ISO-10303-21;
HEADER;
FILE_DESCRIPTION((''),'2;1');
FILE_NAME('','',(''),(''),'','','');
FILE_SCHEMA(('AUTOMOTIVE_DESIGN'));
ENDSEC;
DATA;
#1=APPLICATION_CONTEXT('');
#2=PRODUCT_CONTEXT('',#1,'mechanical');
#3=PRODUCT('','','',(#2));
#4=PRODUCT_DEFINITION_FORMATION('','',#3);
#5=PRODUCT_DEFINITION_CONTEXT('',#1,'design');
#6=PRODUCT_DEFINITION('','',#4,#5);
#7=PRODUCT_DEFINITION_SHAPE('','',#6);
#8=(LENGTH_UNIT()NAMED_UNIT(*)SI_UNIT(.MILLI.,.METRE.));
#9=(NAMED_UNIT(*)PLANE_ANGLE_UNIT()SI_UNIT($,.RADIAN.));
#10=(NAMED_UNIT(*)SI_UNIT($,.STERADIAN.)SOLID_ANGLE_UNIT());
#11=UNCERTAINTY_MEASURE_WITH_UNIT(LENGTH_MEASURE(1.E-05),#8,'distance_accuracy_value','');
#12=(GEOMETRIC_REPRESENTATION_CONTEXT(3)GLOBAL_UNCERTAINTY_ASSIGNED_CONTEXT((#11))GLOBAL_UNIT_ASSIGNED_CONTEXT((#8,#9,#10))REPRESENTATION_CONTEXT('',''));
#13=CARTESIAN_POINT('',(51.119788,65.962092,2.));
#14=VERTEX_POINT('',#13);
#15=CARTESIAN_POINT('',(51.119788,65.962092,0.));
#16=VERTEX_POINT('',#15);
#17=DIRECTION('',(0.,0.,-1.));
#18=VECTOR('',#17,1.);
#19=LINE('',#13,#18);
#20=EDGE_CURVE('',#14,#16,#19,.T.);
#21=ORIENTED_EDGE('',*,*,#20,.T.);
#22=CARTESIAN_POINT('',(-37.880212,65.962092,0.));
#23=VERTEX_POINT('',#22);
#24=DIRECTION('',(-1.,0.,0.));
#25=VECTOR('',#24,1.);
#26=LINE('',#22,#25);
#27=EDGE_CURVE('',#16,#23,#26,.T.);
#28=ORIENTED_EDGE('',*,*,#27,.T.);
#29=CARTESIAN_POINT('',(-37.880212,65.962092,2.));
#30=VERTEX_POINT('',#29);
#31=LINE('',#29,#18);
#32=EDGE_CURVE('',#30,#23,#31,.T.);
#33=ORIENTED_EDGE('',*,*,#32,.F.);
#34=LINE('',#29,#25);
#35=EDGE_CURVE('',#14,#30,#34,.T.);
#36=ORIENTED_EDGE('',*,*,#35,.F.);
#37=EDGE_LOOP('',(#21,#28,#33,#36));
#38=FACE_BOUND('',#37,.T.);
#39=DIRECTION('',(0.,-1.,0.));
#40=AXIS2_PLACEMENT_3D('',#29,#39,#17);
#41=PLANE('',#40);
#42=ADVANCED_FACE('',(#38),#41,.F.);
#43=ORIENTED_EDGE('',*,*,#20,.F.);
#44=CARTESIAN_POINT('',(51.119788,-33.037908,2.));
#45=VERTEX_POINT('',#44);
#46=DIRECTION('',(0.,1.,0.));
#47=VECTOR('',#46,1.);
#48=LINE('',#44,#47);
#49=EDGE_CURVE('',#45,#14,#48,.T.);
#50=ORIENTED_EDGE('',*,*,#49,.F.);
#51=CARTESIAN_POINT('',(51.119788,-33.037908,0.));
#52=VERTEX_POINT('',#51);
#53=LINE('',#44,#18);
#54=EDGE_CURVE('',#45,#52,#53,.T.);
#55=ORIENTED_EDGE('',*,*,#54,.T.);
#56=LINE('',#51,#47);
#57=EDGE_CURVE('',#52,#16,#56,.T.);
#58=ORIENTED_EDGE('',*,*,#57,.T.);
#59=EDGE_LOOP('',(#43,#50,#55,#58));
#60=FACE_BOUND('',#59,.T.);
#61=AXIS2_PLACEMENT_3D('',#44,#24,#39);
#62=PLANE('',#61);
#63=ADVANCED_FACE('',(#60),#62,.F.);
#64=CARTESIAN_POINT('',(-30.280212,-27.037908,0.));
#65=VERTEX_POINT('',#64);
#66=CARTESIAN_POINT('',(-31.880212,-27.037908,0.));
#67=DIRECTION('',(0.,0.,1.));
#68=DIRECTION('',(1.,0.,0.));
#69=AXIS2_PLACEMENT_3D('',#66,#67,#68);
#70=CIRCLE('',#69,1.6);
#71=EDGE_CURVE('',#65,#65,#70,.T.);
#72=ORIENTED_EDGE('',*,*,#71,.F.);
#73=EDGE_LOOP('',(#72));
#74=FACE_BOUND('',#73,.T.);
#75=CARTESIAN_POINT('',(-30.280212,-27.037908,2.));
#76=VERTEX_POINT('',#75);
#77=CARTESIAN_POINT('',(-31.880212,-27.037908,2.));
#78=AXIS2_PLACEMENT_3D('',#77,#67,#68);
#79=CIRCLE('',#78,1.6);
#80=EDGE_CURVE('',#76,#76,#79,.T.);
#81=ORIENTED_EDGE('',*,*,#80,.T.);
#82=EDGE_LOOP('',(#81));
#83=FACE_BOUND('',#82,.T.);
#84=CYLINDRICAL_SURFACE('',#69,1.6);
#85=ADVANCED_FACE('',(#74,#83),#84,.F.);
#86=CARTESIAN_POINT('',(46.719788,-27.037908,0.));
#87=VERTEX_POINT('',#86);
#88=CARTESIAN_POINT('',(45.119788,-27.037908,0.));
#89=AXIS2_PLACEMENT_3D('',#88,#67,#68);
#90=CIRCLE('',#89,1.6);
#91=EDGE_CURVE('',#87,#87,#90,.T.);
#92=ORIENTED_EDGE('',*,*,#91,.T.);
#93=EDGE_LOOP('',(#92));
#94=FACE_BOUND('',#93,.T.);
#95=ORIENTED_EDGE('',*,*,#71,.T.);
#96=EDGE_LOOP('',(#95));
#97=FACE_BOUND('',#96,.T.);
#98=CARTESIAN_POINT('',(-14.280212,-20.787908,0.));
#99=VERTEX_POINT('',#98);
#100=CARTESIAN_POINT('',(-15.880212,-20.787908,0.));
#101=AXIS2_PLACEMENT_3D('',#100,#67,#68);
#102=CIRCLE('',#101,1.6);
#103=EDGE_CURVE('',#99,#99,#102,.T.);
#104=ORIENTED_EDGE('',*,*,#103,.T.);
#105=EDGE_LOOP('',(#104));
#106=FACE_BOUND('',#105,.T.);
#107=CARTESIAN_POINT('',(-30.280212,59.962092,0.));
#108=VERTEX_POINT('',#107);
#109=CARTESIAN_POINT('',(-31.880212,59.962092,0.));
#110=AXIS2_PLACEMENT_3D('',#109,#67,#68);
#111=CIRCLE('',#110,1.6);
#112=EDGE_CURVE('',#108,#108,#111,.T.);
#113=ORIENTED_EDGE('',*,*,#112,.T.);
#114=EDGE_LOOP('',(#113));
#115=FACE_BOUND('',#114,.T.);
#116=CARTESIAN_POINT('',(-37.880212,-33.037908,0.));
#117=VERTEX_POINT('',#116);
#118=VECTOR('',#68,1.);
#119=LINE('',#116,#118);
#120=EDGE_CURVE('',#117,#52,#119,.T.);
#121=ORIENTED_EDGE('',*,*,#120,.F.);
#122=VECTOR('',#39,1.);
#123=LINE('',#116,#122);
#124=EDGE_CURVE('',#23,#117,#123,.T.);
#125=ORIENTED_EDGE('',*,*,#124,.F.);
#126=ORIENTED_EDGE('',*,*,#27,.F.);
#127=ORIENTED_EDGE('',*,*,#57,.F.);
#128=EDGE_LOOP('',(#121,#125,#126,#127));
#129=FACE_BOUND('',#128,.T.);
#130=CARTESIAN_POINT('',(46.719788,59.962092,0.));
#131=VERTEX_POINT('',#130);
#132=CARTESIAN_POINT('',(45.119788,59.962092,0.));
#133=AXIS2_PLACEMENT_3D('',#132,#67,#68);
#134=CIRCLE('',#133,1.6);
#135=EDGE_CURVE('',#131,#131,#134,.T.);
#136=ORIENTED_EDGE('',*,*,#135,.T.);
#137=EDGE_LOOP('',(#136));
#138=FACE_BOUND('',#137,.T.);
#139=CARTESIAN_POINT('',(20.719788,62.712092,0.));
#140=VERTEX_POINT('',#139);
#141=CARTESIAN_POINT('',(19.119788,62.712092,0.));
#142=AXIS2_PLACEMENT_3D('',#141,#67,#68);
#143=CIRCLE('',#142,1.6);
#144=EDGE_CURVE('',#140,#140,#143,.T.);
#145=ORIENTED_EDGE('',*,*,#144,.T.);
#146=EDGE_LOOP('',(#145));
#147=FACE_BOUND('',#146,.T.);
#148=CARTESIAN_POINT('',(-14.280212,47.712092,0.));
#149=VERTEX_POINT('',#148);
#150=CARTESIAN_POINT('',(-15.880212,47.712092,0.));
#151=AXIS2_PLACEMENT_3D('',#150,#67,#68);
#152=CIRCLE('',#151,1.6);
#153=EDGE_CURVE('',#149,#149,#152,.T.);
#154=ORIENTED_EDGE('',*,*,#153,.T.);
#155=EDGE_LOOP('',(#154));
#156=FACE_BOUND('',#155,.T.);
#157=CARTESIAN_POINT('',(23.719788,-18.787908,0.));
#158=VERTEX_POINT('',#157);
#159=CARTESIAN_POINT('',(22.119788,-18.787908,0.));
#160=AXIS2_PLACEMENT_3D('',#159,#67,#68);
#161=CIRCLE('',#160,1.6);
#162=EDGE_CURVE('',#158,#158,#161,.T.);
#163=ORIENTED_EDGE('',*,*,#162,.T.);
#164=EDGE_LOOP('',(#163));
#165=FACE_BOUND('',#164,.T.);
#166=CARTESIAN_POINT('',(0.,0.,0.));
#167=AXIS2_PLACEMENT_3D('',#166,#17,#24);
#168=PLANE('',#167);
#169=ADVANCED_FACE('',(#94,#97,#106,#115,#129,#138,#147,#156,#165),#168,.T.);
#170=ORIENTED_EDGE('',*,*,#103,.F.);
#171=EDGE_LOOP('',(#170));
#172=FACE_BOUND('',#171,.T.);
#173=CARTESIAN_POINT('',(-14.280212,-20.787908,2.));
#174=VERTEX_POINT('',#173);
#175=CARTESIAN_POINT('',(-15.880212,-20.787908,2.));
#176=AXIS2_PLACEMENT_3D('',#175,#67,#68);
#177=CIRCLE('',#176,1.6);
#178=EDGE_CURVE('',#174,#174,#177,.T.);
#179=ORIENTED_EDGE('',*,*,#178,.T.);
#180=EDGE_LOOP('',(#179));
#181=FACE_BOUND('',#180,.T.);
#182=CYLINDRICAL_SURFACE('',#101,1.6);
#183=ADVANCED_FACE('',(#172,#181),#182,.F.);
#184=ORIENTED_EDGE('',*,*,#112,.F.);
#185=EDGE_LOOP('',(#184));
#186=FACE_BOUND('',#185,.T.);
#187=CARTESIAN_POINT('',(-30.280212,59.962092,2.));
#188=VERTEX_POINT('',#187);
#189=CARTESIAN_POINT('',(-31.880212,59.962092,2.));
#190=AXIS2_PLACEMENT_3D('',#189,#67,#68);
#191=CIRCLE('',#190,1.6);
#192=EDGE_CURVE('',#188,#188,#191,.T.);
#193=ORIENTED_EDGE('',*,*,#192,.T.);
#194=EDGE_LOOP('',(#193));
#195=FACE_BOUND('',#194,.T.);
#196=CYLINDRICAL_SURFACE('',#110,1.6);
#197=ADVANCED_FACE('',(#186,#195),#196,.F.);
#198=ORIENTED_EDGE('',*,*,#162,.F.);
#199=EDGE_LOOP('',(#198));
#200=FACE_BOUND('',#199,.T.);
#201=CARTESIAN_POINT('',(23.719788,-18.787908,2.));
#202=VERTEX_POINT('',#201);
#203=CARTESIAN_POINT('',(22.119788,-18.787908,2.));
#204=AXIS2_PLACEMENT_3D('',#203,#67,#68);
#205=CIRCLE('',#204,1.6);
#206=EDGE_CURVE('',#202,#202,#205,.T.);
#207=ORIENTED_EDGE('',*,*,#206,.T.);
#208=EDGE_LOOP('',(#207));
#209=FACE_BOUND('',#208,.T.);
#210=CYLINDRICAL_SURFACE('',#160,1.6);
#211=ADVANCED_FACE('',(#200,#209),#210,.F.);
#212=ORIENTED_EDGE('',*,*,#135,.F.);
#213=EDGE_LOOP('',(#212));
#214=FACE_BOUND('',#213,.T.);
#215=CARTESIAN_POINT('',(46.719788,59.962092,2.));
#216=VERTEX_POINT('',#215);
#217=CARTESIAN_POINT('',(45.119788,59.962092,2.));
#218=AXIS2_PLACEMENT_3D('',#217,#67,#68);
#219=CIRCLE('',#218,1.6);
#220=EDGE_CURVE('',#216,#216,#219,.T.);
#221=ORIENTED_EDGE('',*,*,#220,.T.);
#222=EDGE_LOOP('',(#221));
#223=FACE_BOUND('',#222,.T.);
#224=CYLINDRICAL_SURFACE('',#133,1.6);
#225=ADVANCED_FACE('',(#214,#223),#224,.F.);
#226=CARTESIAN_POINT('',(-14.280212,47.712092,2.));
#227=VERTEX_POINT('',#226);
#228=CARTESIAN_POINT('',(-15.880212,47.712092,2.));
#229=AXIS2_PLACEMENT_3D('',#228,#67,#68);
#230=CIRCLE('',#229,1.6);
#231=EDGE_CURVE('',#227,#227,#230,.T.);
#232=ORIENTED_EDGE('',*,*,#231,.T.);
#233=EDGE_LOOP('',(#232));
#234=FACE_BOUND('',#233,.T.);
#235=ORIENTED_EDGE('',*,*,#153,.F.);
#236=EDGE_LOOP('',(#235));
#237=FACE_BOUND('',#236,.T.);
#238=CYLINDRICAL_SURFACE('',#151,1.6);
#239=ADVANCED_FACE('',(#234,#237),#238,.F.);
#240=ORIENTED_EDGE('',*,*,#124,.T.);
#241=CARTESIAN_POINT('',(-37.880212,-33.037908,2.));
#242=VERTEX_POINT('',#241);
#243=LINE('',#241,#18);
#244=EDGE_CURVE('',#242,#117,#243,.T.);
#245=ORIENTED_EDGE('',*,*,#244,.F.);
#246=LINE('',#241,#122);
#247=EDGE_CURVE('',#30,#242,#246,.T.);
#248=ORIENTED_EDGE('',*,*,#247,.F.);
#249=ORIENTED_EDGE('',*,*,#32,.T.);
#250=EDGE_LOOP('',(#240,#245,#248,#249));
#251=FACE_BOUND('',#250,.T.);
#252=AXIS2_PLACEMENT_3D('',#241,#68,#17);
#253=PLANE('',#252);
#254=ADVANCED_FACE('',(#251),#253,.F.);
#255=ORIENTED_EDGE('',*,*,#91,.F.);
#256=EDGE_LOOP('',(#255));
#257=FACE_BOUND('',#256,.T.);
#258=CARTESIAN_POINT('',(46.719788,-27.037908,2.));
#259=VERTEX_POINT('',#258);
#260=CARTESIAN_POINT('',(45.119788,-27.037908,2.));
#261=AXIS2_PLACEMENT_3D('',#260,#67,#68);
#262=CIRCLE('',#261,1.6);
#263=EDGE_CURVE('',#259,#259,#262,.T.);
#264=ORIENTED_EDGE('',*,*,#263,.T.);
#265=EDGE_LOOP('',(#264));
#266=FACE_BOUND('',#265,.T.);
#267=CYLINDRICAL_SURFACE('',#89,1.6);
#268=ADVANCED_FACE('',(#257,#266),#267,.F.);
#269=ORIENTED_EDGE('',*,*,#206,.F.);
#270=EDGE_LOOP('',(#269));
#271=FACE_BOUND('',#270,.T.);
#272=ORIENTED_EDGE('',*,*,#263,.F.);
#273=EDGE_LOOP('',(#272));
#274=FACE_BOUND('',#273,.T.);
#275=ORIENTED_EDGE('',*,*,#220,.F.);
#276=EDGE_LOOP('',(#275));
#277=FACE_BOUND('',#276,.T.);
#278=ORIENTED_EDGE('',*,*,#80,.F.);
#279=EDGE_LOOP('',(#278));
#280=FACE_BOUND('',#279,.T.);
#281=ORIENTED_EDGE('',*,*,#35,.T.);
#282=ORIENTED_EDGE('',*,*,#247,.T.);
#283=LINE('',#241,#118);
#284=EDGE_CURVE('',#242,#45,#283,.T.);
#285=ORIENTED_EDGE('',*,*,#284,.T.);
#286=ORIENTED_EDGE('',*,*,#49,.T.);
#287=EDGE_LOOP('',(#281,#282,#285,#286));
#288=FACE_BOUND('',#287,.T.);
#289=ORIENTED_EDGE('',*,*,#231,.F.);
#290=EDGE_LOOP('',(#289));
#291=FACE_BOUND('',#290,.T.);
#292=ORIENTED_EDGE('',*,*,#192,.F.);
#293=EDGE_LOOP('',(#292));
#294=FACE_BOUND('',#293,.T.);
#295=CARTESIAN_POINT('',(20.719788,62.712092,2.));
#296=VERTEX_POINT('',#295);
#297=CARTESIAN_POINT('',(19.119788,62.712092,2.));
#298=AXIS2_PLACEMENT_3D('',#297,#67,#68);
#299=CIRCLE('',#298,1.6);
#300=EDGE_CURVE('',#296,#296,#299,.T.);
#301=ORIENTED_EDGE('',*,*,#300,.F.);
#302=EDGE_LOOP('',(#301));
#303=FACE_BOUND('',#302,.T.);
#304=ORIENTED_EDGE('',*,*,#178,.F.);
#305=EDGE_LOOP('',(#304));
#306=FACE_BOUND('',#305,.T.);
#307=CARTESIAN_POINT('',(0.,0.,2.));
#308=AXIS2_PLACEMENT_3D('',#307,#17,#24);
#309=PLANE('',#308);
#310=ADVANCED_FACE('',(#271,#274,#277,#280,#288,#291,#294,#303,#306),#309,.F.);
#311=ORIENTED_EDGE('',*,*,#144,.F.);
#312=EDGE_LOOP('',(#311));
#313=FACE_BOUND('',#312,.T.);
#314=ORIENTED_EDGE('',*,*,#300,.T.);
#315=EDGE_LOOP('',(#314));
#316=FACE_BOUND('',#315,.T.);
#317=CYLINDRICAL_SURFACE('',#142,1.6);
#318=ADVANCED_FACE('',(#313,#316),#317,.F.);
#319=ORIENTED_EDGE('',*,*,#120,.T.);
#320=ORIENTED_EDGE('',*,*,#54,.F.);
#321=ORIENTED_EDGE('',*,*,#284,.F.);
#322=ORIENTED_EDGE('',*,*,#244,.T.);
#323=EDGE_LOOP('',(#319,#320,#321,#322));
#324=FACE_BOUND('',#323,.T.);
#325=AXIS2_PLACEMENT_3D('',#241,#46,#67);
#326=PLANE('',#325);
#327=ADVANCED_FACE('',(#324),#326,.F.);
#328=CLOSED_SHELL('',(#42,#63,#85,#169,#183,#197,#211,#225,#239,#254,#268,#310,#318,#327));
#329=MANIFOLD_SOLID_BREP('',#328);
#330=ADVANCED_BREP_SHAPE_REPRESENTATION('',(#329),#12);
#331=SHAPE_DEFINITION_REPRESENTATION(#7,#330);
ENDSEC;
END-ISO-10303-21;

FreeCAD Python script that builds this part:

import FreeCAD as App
import Part
import Sketcher

V = App.Vector

doc = App.newDocument("Part")
body = doc.addObject("PartDesign::Body", "Body")

# Sketch on XY plane
sketch1 = body.newObject("Sketcher::SketchObject", "Sketch")
sketch1.AttachmentSupport = (doc.getObject("XY_Plane"), [""])
sketch1.MapMode = "FlatFace"
sketch1.addGeometry(Part.LineSegment(V(-37.880212, 65.962092, 0), V(-37.880212, -33.037908, 0)), False)
sketch1.addGeometry(Part.LineSegment(V(-37.880212, -33.037908, 0), V(51.119788, -33.037908, 0)), False)
sketch1.addGeometry(Part.LineSegment(V(51.119788, -33.037908, 0), V(51.119788, 65.962092, 0)), False)
sketch1.addGeometry(Part.LineSegment(V(51.119788, 65.962092, 0), V(-37.880212, 65.962092, 0)), False)
sketch1.addConstraint(Sketcher.Constraint("Coincident", 0, 2, 1, 1))
sketch1.addConstraint(Sketcher.Constraint("Coincident", 1, 2, 2, 1))
sketch1.addConstraint(Sketcher.Constraint("Coincident", 2, 2, 3, 1))
sketch1.addConstraint(Sketcher.Constraint("Coincident", 3, 2, 0, 1))
sketch1.addConstraint(Sketcher.Constraint("Vertical", 0))
sketch1.addConstraint(Sketcher.Constraint("Horizontal", 1))
sketch1.addConstraint(Sketcher.Constraint("Vertical", 2))
sketch1.addConstraint(Sketcher.Constraint("Horizontal", 3))
sketch1.addConstraint(Sketcher.Constraint("DistanceX", 1, 1, 1, 2, 89.0))
sketch1.addConstraint(Sketcher.Constraint("DistanceY", 0, 2, 0, 1, 99.0))
sketch1.addConstraint(Sketcher.Constraint("DistanceX", 0, 2, -1, 1, 37.880212))
sketch1.addConstraint(Sketcher.Constraint("DistanceY", 0, 2, -1, 1, 33.037908))
pad1 = body.newObject("PartDesign::Pad", "Pad")
pad1.Profile = sketch1
pad1.Length = 2

# Sketch on XY plane
sketch2 = body.newObject("Sketcher::SketchObject", "Sketch001")
sketch2.AttachmentSupport = (doc.getObject("XY_Plane"), [""])
sketch2.MapMode = "FlatFace"
sketch2.AttachmentOffset = App.Placement(V(0, 0, 2), App.Rotation())
sketch2.addGeometry(Part.Circle(V(-31.880212, 59.962092, 0), V(0, 0, 1), 1.6), False)
sketch2.addGeometry(Part.Circle(V(45.119788, 59.962092, 0), V(0, 0, 1), 1.6), False)
sketch2.addGeometry(Part.Circle(V(-31.880212, -27.037908, 0), V(0, 0, 1), 1.6), False)
sketch2.addGeometry(Part.Circle(V(45.119788, -27.037908, 0), V(0, 0, 1), 1.6), False)
sketch2.addConstraint(Sketcher.Constraint("Equal", 0, 1))
sketch2.addConstraint(Sketcher.Constraint("Equal", 1, 2))
sketch2.addConstraint(Sketcher.Constraint("Equal", 2, 3))
sketch2.addConstraint(Sketcher.Constraint("Horizontal", 0, 3, 1, 3))
sketch2.addConstraint(Sketcher.Constraint("Horizontal", 2, 3, 3, 3))
sketch2.addConstraint(Sketcher.Constraint("Vertical", 0, 3, 2, 3))
sketch2.addConstraint(Sketcher.Constraint("Vertical", 1, 3, 3, 3))
sketch2.addConstraint(Sketcher.Constraint("Diameter", 0, 3.2))
sketch2.addConstraint(Sketcher.Constraint("DistanceX", 0, 3, 1, 3, 77.0))
sketch2.addConstraint(Sketcher.Constraint("DistanceY", 2, 3, 0, 3, 87.0))
sketch2.addConstraint(Sketcher.Constraint("DistanceX", 0, 3, -1, 1, 31.880212))
sketch2.addConstraint(Sketcher.Constraint("DistanceY", -1, 1, 0, 3, 59.962092))
pocket1 = body.newObject("PartDesign::Pocket", "Pocket")
pocket1.Profile = sketch2
pocket1.Type = "ThroughAll"

# Sketch on XY plane
sketch3 = body.newObject("Sketcher::SketchObject", "Sketch002")
sketch3.AttachmentSupport = (doc.getObject("XY_Plane"), [""])
sketch3.MapMode = "FlatFace"
sketch3.AttachmentOffset = App.Placement(V(0, 0, 2), App.Rotation())
sketch3.addGeometry(Part.Circle(V(-15.880212, 47.712092, 0), V(0, 0, 1), 1.6), False)
sketch3.addGeometry(Part.Circle(V(-15.880212, -20.787908, 0), V(0, 0, 1), 1.6), False)
sketch3.addGeometry(Part.Circle(V(19.119788, 62.712092, 0), V(0, 0, 1), 1.6), False)
sketch3.addGeometry(Part.Circle(V(22.119788, -18.787908, 0), V(0, 0, 1), 1.6), False)
sketch3.addConstraint(Sketcher.Constraint("Equal", 0, 1))
sketch3.addConstraint(Sketcher.Constraint("Equal", 1, 2))
sketch3.addConstraint(Sketcher.Constraint("Equal", 2, 3))
sketch3.addConstraint(Sketcher.Constraint("Vertical", 0, 3, 1, 3))
sketch3.addConstraint(Sketcher.Constraint("Diameter", 0, 3.2))
sketch3.addConstraint(Sketcher.Constraint("DistanceX", 0, 3, 2, 3, 35.0))
sketch3.addConstraint(Sketcher.Constraint("DistanceY", 0, 3, 2, 3, 15.0))
sketch3.addConstraint(Sketcher.Constraint("DistanceX", 1, 3, 3, 3, 38.0))
sketch3.addConstraint(Sketcher.Constraint("DistanceY", 1, 3, 3, 3, 2.0))
sketch3.addConstraint(Sketcher.Constraint("DistanceY", 1, 3, 0, 3, 68.5))
sketch3.addConstraint(Sketcher.Constraint("DistanceX", 0, 3, -1, 1, 15.880212))
sketch3.addConstraint(Sketcher.Constraint("DistanceY", -1, 1, 0, 3, 47.712092))
pocket2 = body.newObject("PartDesign::Pocket", "Pocket001")
pocket2.Profile = sketch3
pocket2.Type = "ThroughAll"

doc.recompute()
